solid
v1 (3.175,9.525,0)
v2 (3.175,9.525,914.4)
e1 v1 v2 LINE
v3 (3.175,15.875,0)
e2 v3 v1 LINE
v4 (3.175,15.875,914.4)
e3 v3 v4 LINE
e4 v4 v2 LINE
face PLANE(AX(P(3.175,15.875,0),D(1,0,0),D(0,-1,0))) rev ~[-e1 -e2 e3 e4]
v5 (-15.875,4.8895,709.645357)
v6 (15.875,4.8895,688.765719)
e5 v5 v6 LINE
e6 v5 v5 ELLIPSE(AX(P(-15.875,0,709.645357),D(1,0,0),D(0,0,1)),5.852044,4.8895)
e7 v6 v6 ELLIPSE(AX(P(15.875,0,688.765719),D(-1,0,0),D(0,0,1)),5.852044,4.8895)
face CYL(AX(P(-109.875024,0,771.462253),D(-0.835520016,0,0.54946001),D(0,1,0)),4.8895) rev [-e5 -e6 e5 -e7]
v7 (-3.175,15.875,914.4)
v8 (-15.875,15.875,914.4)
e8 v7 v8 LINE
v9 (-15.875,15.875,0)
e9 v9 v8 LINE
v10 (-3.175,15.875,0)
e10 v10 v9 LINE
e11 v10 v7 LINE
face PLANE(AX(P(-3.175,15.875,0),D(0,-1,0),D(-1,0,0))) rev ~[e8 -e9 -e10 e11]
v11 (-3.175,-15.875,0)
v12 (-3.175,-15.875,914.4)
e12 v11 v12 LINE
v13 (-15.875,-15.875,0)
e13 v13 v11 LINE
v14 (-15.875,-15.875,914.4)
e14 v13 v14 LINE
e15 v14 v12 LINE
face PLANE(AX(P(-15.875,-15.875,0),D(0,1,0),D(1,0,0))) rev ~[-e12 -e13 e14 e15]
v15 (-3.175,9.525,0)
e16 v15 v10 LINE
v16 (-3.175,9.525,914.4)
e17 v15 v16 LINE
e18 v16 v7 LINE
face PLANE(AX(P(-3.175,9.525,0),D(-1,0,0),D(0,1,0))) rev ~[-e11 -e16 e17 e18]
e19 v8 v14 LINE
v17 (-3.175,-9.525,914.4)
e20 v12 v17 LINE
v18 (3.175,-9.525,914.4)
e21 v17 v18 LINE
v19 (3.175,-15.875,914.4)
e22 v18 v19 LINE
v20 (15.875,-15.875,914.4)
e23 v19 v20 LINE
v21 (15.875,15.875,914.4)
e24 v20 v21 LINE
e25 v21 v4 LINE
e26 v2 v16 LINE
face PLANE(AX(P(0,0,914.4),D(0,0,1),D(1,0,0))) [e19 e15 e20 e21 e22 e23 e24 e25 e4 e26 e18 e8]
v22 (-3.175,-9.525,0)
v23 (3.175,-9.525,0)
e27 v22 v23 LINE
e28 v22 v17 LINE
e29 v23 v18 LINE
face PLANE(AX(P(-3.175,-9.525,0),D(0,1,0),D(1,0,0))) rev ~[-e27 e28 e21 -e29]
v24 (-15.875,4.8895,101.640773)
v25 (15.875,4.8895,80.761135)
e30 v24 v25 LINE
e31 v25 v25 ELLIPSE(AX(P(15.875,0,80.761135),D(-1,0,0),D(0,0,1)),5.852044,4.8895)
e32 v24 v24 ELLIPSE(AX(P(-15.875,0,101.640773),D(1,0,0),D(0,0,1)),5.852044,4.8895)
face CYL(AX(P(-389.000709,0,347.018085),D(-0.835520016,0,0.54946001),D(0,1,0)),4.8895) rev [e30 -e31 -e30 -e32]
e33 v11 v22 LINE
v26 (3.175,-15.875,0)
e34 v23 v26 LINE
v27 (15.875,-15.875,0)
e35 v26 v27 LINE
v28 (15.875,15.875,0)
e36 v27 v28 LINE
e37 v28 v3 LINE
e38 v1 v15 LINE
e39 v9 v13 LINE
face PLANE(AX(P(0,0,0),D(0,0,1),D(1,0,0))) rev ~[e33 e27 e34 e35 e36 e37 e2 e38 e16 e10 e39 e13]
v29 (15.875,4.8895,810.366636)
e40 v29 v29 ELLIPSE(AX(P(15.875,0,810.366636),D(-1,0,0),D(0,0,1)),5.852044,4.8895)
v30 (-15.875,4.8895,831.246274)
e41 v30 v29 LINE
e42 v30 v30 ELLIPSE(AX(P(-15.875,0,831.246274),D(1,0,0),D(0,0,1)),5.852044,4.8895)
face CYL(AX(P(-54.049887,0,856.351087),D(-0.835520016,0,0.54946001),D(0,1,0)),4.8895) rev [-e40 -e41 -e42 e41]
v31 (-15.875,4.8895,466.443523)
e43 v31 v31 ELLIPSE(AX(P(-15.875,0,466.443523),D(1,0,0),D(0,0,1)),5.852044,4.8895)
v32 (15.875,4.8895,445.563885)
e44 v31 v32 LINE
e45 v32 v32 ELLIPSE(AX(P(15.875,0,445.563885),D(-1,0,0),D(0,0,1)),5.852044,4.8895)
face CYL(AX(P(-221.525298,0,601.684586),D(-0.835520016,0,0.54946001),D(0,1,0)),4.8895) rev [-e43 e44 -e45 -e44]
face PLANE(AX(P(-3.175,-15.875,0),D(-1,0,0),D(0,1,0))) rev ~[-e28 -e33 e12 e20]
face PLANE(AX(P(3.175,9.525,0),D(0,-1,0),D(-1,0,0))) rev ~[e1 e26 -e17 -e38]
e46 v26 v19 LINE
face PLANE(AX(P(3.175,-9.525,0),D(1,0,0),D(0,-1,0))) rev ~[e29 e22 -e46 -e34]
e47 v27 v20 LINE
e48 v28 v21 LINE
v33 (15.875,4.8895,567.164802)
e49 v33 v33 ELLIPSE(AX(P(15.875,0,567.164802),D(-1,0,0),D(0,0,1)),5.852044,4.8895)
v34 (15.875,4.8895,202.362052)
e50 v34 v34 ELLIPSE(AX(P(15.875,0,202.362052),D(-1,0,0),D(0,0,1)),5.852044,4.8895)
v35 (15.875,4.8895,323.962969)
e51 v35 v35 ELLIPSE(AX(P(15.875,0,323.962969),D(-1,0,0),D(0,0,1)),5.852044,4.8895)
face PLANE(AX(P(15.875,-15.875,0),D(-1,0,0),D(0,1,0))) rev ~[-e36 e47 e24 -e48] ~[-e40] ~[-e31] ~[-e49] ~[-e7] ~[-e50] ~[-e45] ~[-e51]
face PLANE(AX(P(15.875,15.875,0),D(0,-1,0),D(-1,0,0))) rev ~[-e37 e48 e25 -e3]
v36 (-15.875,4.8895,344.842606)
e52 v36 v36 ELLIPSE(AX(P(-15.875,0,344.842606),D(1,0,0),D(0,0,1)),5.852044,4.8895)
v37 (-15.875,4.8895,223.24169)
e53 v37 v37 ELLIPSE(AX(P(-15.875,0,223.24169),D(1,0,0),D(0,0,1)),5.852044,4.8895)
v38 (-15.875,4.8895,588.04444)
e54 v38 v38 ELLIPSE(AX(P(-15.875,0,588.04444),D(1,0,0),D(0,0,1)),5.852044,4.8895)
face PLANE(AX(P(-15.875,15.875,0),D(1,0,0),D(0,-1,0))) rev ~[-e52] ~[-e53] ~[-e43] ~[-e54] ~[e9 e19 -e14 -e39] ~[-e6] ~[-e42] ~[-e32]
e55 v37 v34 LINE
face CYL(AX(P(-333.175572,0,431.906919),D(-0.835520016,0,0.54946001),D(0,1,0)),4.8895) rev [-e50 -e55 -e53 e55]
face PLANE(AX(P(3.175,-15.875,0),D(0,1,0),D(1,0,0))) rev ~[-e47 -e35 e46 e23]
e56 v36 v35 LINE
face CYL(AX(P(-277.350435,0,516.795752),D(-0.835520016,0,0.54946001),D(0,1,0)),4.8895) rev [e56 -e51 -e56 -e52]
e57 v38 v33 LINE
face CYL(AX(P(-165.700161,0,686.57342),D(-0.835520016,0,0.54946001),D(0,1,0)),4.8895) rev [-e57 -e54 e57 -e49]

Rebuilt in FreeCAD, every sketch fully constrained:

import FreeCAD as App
import Part
import Sketcher

V = App.Vector
Q = App.Units.Quantity

doc = App.newDocument("Part")
body = doc.addObject("PartDesign::Body", "Body")

sketch1 = body.newObject("Sketcher::SketchObject", "Sketch")
sketch1.AttachmentSupport = (doc.getObject("XY_Plane"), [""])
sketch1.MapMode = "FlatFace"
sketch1.addGeometry(Part.LineSegment(V(3, -16, 0), V(16, -16, 0)), False)
sketch1.addGeometry(Part.LineSegment(V(16, -16, 0), V(16, 16, 0)), False)
sketch1.addGeometry(Part.LineSegment(V(16, 16, 0), V(3, 16, 0)), False)
sketch1.addGeometry(Part.LineSegment(V(3, 16, 0), V(3, 10, 0)), False)
sketch1.addGeometry(Part.LineSegment(V(3, 10, 0), V(-3, 10, 0)), False)
sketch1.addGeometry(Part.LineSegment(V(-3, 10, 0), V(-3, 16, 0)), False)
sketch1.addGeometry(Part.LineSegment(V(-3, 16, 0), V(-16, 16, 0)), False)
sketch1.addGeometry(Part.LineSegment(V(-16, 16, 0), V(-16, -16, 0)), False)
sketch1.addGeometry(Part.LineSegment(V(-16, -16, 0), V(-3, -16, 0)), False)
sketch1.addGeometry(Part.LineSegment(V(-3, -16, 0), V(-3, -10, 0)), False)
sketch1.addGeometry(Part.LineSegment(V(-3, -10, 0), V(3, -10, 0)), False)
sketch1.addGeometry(Part.LineSegment(V(3, -10, 0), V(3, -16, 0)), False)
sketch1.addConstraint(Sketcher.Constraint("Coincident", 0, 2, 1, 1))
sketch1.addConstraint(Sketcher.Constraint("Coincident", 1, 2, 2, 1))
sketch1.addConstraint(Sketcher.Constraint("Coincident", 2, 2, 3, 1))
sketch1.addConstraint(Sketcher.Constraint("Coincident", 3, 2, 4, 1))
sketch1.addConstraint(Sketcher.Constraint("Coincident", 4, 2, 5, 1))
sketch1.addConstraint(Sketcher.Constraint("Coincident", 5, 2, 6, 1))
sketch1.addConstraint(Sketcher.Constraint("Coincident", 6, 2, 7, 1))
sketch1.addConstraint(Sketcher.Constraint("Coincident", 7, 2, 8, 1))
sketch1.addConstraint(Sketcher.Constraint("Coincident", 8, 2, 9, 1))
sketch1.addConstraint(Sketcher.Constraint("Coincident", 9, 2, 10, 1))
sketch1.addConstraint(Sketcher.Constraint("Coincident", 10, 2, 11, 1))
sketch1.addConstraint(Sketcher.Constraint("Coincident", 11, 2, 0, 1))
sketch1.addConstraint(Sketcher.Constraint("Horizontal", 0))
sketch1.addConstraint(Sketcher.Constraint("Vertical", 1))
sketch1.addConstraint(Sketcher.Constraint("Horizontal", 2))
sketch1.addConstraint(Sketcher.Constraint("Vertical", 3))
sketch1.addConstraint(Sketcher.Constraint("Horizontal", 4))
sketch1.addConstraint(Sketcher.Constraint("Vertical", 5))
sketch1.addConstraint(Sketcher.Constraint("Horizontal", 6))
sketch1.addConstraint(Sketcher.Constraint("Vertical", 7))
sketch1.addConstraint(Sketcher.Constraint("Horizontal", 8))
sketch1.addConstraint(Sketcher.Constraint("Vertical", 9))
sketch1.addConstraint(Sketcher.Constraint("Horizontal", 10))
sketch1.addConstraint(Sketcher.Constraint("Vertical", 11))
sketch1.addConstraint(Sketcher.Constraint("Symmetric", 0, 2, 6, 2, -1, 1))
sketch1.addConstraint(Sketcher.Constraint("Symmetric", 2, 2, 8, 2, -1, 1))
sketch1.addConstraint(Sketcher.Constraint("Symmetric", 4, 2, 10, 2, -1, 1))
sketch1.addConstraint(Sketcher.Constraint("Symmetric", 2, 2, 5, 2, -2))
sketch1.addConstraint(Sketcher.Constraint("Equal", 10, 3))
sketch1.addConstraint(Sketcher.Constraint("DistanceX", 0, 1, 0, 2, Q("0.5 in")))
sketch1.addConstraint(Sketcher.Constraint("DistanceY", 0, 2, 3, 2, Q("1 in")))
sketch1.addConstraint(Sketcher.Constraint("DistanceX", 4, 2, 4, 1, Q("0.25 in")))
pad1 = body.newObject("PartDesign::Pad", "Pad")
pad1.Profile = sketch1
pad1.Length = Q("36 in")

sketch2 = body.newObject("Sketcher::SketchObject", "Sketch001")
sketch2.Placement = App.Placement(V(-430.869562, 0, 283.35146), App.Rotation(V(0, 1, 0), V(0.54946001, 0, 0.835520016), V(0.835520016, 0, -0.54946001), "ZXY"))
sketch2.addGeometry(Part.Circle(V(0, 787.4, 0), V(0, 0, 1), 4.9), False)
sketch2.addGeometry(Part.Circle(V(0, 685.8, 0), V(0, 0, 1), 4.9), False)
sketch2.addGeometry(Part.Circle(V(0, 584.2, 0), V(0, 0, 1), 4.9), False)
sketch2.addGeometry(Part.Circle(V(0, 482.6, 0), V(0, 0, 1), 4.9), False)
sketch2.addGeometry(Part.Circle(V(0, 381, 0), V(0, 0, 1), 4.9), False)
sketch2.addGeometry(Part.Circle(V(0, 279.4, 0), V(0, 0, 1), 4.9), False)
sketch2.addGeometry(Part.Circle(V(0, 177.8, 0), V(0, 0, 1), 4.9), False)
sketch2.addGeometry(Part.Circle(V(0, 76.2, 0), V(0, 0, 1), 4.9), False)
sketch2.addConstraint(Sketcher.Constraint("Equal", 0, 1))
sketch2.addConstraint(Sketcher.Constraint("Equal", 1, 2))
sketch2.addConstraint(Sketcher.Constraint("Equal", 2, 3))
sketch2.addConstraint(Sketcher.Constraint("Equal", 3, 4))
sketch2.addConstraint(Sketcher.Constraint("Equal", 4, 5))
sketch2.addConstraint(Sketcher.Constraint("Equal", 5, 6))
sketch2.addConstraint(Sketcher.Constraint("Equal", 6, 7))
sketch2.addConstraint(Sketcher.Constraint("PointOnObject", 0, 3, -2))
sketch2.addConstraint(Sketcher.Constraint("PointOnObject", 1, 3, -2))
sketch2.addConstraint(Sketcher.Constraint("PointOnObject", 2, 3, -2))
sketch2.addConstraint(Sketcher.Constraint("PointOnObject", 3, 3, -2))
sketch2.addConstraint(Sketcher.Constraint("PointOnObject", 4, 3, -2))
sketch2.addConstraint(Sketcher.Constraint("PointOnObject", 5, 3, -2))
sketch2.addConstraint(Sketcher.Constraint("PointOnObject", 6, 3, -2))
sketch2.addConstraint(Sketcher.Constraint("PointOnObject", 7, 3, -2))
sketch2.addConstraint(Sketcher.Constraint("Diameter", 0, Q("0.385 in")))
sketch2.addConstraint(Sketcher.Constraint("DistanceY", -1, 1, 0, 3, Q("31 in")))
sketch2.addConstraint(Sketcher.Constraint("DistanceY", -1, 1, 1, 3, Q("27 in")))
sketch2.addConstraint(Sketcher.Constraint("DistanceY", -1, 1, 2, 3, Q("23 in")))
sketch2.addConstraint(Sketcher.Constraint("DistanceY", -1, 1, 3, 3, Q("19 in")))
sketch2.addConstraint(Sketcher.Constraint("DistanceY", -1, 1, 4, 3, Q("15 in")))
sketch2.addConstraint(Sketcher.Constraint("DistanceY", -1, 1, 5, 3, Q("11 in")))
sketch2.addConstraint(Sketcher.Constraint("DistanceY", -1, 1, 6, 3, Q("7 in")))
sketch2.addConstraint(Sketcher.Constraint("DistanceY", -1, 1, 7, 3, Q("3 in")))
pocket1 = body.newObject("PartDesign::Pocket", "Pocket")
pocket1.Profile = sketch2
pocket1.Type = "ThroughAll"
pocket1.Reversed = True

doc.recompute()
